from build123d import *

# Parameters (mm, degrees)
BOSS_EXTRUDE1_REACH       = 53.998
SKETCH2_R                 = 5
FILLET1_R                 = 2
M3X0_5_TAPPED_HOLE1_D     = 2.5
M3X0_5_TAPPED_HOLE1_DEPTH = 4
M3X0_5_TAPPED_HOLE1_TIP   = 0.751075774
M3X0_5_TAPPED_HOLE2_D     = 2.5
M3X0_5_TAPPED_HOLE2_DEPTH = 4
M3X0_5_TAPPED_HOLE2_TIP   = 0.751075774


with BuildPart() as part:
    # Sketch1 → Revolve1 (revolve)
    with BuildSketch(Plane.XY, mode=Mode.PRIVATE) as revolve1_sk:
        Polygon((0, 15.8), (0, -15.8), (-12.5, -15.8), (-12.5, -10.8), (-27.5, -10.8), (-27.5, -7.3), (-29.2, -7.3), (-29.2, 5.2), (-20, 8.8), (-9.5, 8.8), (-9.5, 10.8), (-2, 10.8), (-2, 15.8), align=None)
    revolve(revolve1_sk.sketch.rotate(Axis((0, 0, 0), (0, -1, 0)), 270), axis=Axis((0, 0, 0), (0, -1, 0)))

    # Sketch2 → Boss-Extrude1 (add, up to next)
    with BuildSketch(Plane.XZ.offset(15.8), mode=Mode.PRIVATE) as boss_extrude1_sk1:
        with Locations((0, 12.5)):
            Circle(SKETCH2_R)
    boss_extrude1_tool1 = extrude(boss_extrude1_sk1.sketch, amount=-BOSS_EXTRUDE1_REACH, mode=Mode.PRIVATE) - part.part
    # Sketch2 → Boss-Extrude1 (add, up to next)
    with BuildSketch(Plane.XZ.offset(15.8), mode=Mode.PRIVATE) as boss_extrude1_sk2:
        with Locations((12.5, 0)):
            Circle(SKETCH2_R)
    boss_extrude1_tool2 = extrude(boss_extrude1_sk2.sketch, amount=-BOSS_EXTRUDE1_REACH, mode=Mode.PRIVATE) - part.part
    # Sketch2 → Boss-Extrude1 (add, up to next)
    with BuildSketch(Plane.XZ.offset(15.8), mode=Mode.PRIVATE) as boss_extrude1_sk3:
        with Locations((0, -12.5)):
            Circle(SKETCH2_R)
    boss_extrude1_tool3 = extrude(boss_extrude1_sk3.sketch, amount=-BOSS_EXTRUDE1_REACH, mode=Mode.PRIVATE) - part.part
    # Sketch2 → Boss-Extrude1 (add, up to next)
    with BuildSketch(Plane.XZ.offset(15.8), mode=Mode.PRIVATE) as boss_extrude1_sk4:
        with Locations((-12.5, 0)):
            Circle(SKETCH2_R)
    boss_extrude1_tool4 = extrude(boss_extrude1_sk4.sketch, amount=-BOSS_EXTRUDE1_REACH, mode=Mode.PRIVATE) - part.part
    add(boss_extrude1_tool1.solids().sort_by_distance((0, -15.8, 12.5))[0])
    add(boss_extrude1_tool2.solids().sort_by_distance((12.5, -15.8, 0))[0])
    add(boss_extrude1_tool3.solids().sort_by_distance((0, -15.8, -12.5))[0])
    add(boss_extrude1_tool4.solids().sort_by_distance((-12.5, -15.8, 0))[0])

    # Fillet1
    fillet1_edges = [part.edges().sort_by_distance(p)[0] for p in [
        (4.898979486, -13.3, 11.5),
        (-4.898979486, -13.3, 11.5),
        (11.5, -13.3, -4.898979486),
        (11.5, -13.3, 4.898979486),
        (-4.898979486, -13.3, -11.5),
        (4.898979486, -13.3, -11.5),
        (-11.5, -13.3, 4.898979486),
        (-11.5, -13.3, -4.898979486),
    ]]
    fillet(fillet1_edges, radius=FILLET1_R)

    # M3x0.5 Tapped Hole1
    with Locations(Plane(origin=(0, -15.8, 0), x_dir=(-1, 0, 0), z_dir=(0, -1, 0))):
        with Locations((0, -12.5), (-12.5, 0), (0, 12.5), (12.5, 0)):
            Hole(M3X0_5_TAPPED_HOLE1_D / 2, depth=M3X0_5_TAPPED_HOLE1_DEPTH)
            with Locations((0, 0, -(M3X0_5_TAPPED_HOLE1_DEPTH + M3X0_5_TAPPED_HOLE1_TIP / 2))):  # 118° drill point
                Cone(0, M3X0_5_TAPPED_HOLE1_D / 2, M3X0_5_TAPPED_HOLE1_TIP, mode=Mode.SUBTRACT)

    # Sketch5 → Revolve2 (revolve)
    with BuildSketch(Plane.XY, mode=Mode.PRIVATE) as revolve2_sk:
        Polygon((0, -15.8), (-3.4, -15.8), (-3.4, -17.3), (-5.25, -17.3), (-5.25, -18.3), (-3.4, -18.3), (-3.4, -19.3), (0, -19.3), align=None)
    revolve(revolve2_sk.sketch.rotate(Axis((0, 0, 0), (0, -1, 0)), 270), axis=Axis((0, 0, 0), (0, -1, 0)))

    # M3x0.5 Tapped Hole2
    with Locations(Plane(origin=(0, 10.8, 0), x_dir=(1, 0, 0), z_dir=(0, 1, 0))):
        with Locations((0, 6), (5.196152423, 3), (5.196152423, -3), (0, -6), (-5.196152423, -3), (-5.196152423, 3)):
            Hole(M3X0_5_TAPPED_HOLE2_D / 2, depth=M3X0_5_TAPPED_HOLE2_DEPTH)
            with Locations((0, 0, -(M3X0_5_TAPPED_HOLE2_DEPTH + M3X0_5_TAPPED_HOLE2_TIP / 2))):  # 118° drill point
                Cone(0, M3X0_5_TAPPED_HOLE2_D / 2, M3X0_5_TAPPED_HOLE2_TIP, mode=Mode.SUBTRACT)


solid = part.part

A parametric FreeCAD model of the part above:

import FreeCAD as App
import Part
import Sketcher
from FreeCAD import Vector


def edges_at(feature, points):
    """Names of the edges that pass closest to the given points."""
    edges = feature.Shape.Edges
    near = lambda p: min(range(len(edges)), key=lambda i: edges[i].distToShape(Part.Vertex(*p))[0])
    return sorted({f"Edge{near(p) + 1}" for p in points})


def add_polygon(sketch, points):
    """Adds a closed chain of lines whose ends are joined by coincident constraints."""
    first, n = sketch.GeometryCount, len(points)
    for a, b in zip(points, points[1:] + points[:1]):
        sketch.addGeometry(Part.LineSegment(App.Vector(*a, 0), App.Vector(*b, 0)), False)
    for i in range(n):
        sketch.addConstraint(Sketcher.Constraint("Coincident", first + i, 2, first + (i + 1) % n, 1))

doc = App.newDocument("Part")
body = doc.addObject("PartDesign::Body", "Body")

# Sketch on XY plane
sketch1 = body.newObject("Sketcher::SketchObject", "Sketch")
sketch1.AttachmentSupport = (doc.getObject("XY_Plane"), [""])
sketch1.MapMode = "FlatFace"
add_polygon(sketch1, [(0, -15.8), (0, 15.8), (-2, 15.8), (-2, 10.8), (-9.5, 10.8), (-9.5, 8.8), (-20, 8.8), (-29.2, 5.2), (-29.2, -7.3), (-27.5, -7.3), (-27.5, -10.8), (-12.5, -10.8), (-12.5, -15.8)])  # lines 0-12
sketch1.addConstraint(Sketcher.Constraint("Vertical", 0))
sketch1.addConstraint(Sketcher.Constraint("Horizontal", 1))
sketch1.addConstraint(Sketcher.Constraint("Vertical", 2))
sketch1.addConstraint(Sketcher.Constraint("Horizontal", 3))
sketch1.addConstraint(Sketcher.Constraint("Vertical", 4))
sketch1.addConstraint(Sketcher.Constraint("Horizontal", 5))
sketch1.addConstraint(Sketcher.Constraint("Vertical", 7))
sketch1.addConstraint(Sketcher.Constraint("Horizontal", 8))
sketch1.addConstraint(Sketcher.Constraint("Vertical", 9))
sketch1.addConstraint(Sketcher.Constraint("Horizontal", 10))
sketch1.addConstraint(Sketcher.Constraint("Vertical", 11))
sketch1.addConstraint(Sketcher.Constraint("Horizontal", 12))
sketch1.addConstraint(Sketcher.Constraint("Symmetric", 0, 2, 12, 2, -1, 1))
sketch1.addConstraint(Sketcher.Constraint("Equal", 1, 4))
sketch1.addConstraint(Sketcher.Constraint("Equal", 12, 7))
sketch1.addConstraint(Sketcher.Constraint("Equal", 2, 11))
sketch1.addConstraint(Sketcher.Constraint("DistanceX", 1, 2, 1, 1, 2.0))
sketch1.addConstraint(Sketcher.Constraint("DistanceX", 10, 1, 10, 2, 15.0))
sketch1.addConstraint(Sketcher.Constraint("DistanceY", 2, 2, 2, 1, 5.0))
sketch1.addConstraint(Sketcher.Constraint("DistanceX", 3, 2, 3, 1, 7.5))
sketch1.addConstraint(Sketcher.Constraint("DistanceX", 5, 2, 5, 1, 10.5))
sketch1.addConstraint(Sketcher.Constraint("DistanceX", 8, 1, 8, 2, 1.7))
sketch1.addConstraint(Sketcher.Constraint("DistanceX", 12, 1, 12, 2, 12.5))
sketch1.addConstraint(Sketcher.Constraint("DistanceY", 0, 1, 0, 2, 31.6))
sketch1.addConstraint(Sketcher.Constraint("DistanceY", 9, 2, 9, 1, 3.5))
revolution = body.newObject("PartDesign::Revolution", "Revolution")
revolution.Profile = sketch1
revolution.ReferenceAxis = (sketch1, ["V_Axis"])
revolution.Angle = 360

# Sketch on XZ plane
sketch2 = body.newObject("Sketcher::SketchObject", "Sketch001")
sketch2.AttachmentSupport = (doc.getObject("XZ_Plane"), [""])
sketch2.MapMode = "FlatFace"
sketch2.AttachmentOffset = App.Placement(Vector(0, 0, 15.8), App.Rotation())
sketch2.addGeometry(Part.Circle(Vector(0, 12.5, 0), Vector(0, 0, 1), 5), False)
sketch2.addConstraint(Sketcher.Constraint("PointOnObject", 0, 3, -2))
sketch2.addConstraint(Sketcher.Constraint("Diameter", 0, 10.0))
sketch2.addConstraint(Sketcher.Constraint("DistanceY", -1, 1, 0, 3, 12.5))
pad1 = body.newObject("PartDesign::Pad", "Pad")
pad1.Profile = sketch2
pad1.Type = "UpToFirst"
pad1.Reversed = True

# Sketch on XZ plane
sketch3 = body.newObject("Sketcher::SketchObject", "Sketch002")
sketch3.AttachmentSupport = (doc.getObject("XZ_Plane"), [""])
sketch3.MapMode = "FlatFace"
sketch3.AttachmentOffset = App.Placement(Vector(0, 0, 15.8), App.Rotation())
sketch3.addGeometry(Part.Circle(Vector(12.5, 0, 0), Vector(0, 0, 1), 5), False)
sketch3.addConstraint(Sketcher.Constraint("PointOnObject", 0, 3, -1))
sketch3.addConstraint(Sketcher.Constraint("Diameter", 0, 10.0))
sketch3.addConstraint(Sketcher.Constraint("DistanceX", -1, 1, 0, 3, 12.5))
pad2 = body.newObject("PartDesign::Pad", "Pad001")
pad2.Profile = sketch3
pad2.Type = "UpToFirst"
pad2.Reversed = True

# Sketch on XZ plane
sketch4 = body.newObject("Sketcher::SketchObject", "Sketch003")
sketch4.AttachmentSupport = (doc.getObject("XZ_Plane"), [""])
sketch4.MapMode = "FlatFace"
sketch4.AttachmentOffset = App.Placement(Vector(0, 0, 15.8), App.Rotation())
sketch4.addGeometry(Part.Circle(Vector(0, -12.5, 0), Vector(0, 0, 1), 5), False)
sketch4.addConstraint(Sketcher.Constraint("PointOnObject", 0, 3, -2))
sketch4.addConstraint(Sketcher.Constraint("Diameter", 0, 10.0))
sketch4.addConstraint(Sketcher.Constraint("DistanceY", 0, 3, -1, 1, 12.5))
pad3 = body.newObject("PartDesign::Pad", "Pad002")
pad3.Profile = sketch4
pad3.Type = "UpToFirst"
pad3.Reversed = True

# Sketch on XZ plane
sketch5 = body.newObject("Sketcher::SketchObject", "Sketch004")
sketch5.AttachmentSupport = (doc.getObject("XZ_Plane"), [""])
sketch5.MapMode = "FlatFace"
sketch5.AttachmentOffset = App.Placement(Vector(0, 0, 15.8), App.Rotation())
sketch5.addGeometry(Part.Circle(Vector(-12.5, 0, 0), Vector(0, 0, 1), 5), False)
sketch5.addConstraint(Sketcher.Constraint("PointOnObject", 0, 3, -1))
sketch5.addConstraint(Sketcher.Constraint("Diameter", 0, 10.0))
sketch5.addConstraint(Sketcher.Constraint("DistanceX", 0, 3, -1, 1, 12.5))
pad4 = body.newObject("PartDesign::Pad", "Pad003")
pad4.Profile = sketch5
pad4.Type = "UpToFirst"
pad4.Reversed = True
doc.recompute()

fillet = body.newObject("PartDesign::Fillet", "Fillet")
fillet.Base = (pad4, edges_at(pad4, [
    (4.899, -13.3, 11.5),
    (-4.899, -13.3, 11.5),
    (11.5, -13.3, -4.899),
    (11.5, -13.3, 4.899),
    (-4.899, -13.3, -11.5),
    (4.899, -13.3, -11.5),
    (-11.5, -13.3, 4.899),
    (-11.5, -13.3, -4.899),
]))
fillet.Radius = 2

# Sketch on XZ plane
sketch6 = body.newObject("Sketcher::SketchObject", "Sketch005")
sketch6.AttachmentSupport = (doc.getObject("XZ_Plane"), [""])
sketch6.MapMode = "FlatFace"
sketch6.AttachmentOffset = App.Placement(Vector(0, 0, 15.8), App.Rotation())
sketch6.addGeometry(Part.Circle(Vector(0, 12.5, 0), Vector(0, 0, 1), 1.25), False)
sketch6.addGeometry(Part.Circle(Vector(12.5, 0, 0), Vector(0, 0, 1), 1.25), False)
sketch6.addGeometry(Part.Circle(Vector(0, -12.5, 0), Vector(0, 0, 1), 1.25), False)
sketch6.addGeometry(Part.Circle(Vector(-12.5, 0, 0), Vector(0, 0, 1), 1.25), False)
sketch6.addConstraint(Sketcher.Constraint("Equal", 0, 1))
sketch6.addConstraint(Sketcher.Constraint("Equal", 1, 2))
sketch6.addConstraint(Sketcher.Constraint("Equal", 2, 3))
sketch6.addConstraint(Sketcher.Constraint("Symmetric", 0, 3, 2, 3, -1, 1))
sketch6.addConstraint(Sketcher.Constraint("Symmetric", 1, 3, 3, 3, -1, 1))
sketch6.addConstraint(Sketcher.Constraint("PointOnObject", 0, 3, -2))
sketch6.addConstraint(Sketcher.Constraint("PointOnObject", 1, 3, -1))
sketch6.addConstraint(Sketcher.Constraint("Diameter", 0, 2.5))
sketch6.addConstraint(Sketcher.Constraint("DistanceY", 2, 3, 0, 3, 25.0))
sketch6.addConstraint(Sketcher.Constraint("DistanceX", 3, 3, 1, 3, 25.0))
doc.recompute()
hole = body.newObject("PartDesign::Hole", "Hole")
hole.Profile = sketch6
hole.ThreadType = "None"
hole.Diameter = 2.5
hole.DepthType = "Dimension"
hole.Depth = 4
hole.DrillPoint = "Angled"
hole.DrillPointAngle = 118

# Sketch on XY plane
sketch7 = body.newObject("Sketcher::SketchObject", "Sketch006")
sketch7.AttachmentSupport = (doc.getObject("XY_Plane"), [""])
sketch7.MapMode = "FlatFace"
add_polygon(sketch7, [(0, -15.8), (-3.4, -15.8), (-3.4, -17.3), (-5.25, -17.3), (-5.25, -18.3), (-3.4, -18.3), (-3.4, -19.3), (0, -19.3)])  # lines 0-7
sketch7.addConstraint(Sketcher.Constraint("Horizontal", 0))
sketch7.addConstraint(Sketcher.Constraint("Vertical", 1))
sketch7.addConstraint(Sketcher.Constraint("Horizontal", 2))
sketch7.addConstraint(Sketcher.Constraint("Vertical", 3))
sketch7.addConstraint(Sketcher.Constraint("Horizontal", 4))
sketch7.addConstraint(Sketcher.Constraint("Vertical", 5))
sketch7.addConstraint(Sketcher.Constraint("Horizontal", 6))
sketch7.addConstraint(Sketcher.Constraint("Vertical", 7))
sketch7.addConstraint(Sketcher.Constraint("PointOnObject", 6, 2, -2))
sketch7.addConstraint(Sketcher.Constraint("Vertical", 1, 2, 4, 2))
sketch7.addConstraint(Sketcher.Constraint("Equal", 3, 5))
sketch7.addConstraint(Sketcher.Constraint("DistanceY", 3, 2, 3, 1, 1.0))
sketch7.addConstraint(Sketcher.Constraint("DistanceX", 0, 2, 0, 1, 3.4))
sketch7.addConstraint(Sketcher.Constraint("DistanceY", 1, 2, 1, 1, 1.5))
sketch7.addConstraint(Sketcher.Constraint("DistanceX", 2, 2, 2, 1, 1.85))
sketch7.addConstraint(Sketcher.Constraint("DistanceY", 0, 2, -1, 1, 15.8))
revolution2 = body.newObject("PartDesign::Revolution", "Revolution001")
revolution2.Profile = sketch7
revolution2.ReferenceAxis = (sketch7, ["V_Axis"])
revolution2.Angle = 360

# Sketch on XZ plane
sketch8 = body.newObject("Sketcher::SketchObject", "Sketch007")
sketch8.AttachmentSupport = (doc.getObject("XZ_Plane"), [""])
sketch8.MapMode = "FlatFace"
sketch8.AttachmentOffset = App.Placement(Vector(0, 0, -10.8), App.Rotation())
sketch8.addGeometry(Part.Circle(Vector(0, -6, 0), Vector(0, 0, 1), 1.25), False)
sketch8.addGeometry(Part.Circle(Vector(5.196152, -3, 0), Vector(0, 0, 1), 1.25), False)
sketch8.addGeometry(Part.Circle(Vector(5.196152, 3, 0), Vector(0, 0, 1), 1.25), False)
sketch8.addGeometry(Part.Circle(Vector(0, 6, 0), Vector(0, 0, 1), 1.25), False)
sketch8.addGeometry(Part.Circle(Vector(-5.196152, 3, 0), Vector(0, 0, 1), 1.25), False)
sketch8.addGeometry(Part.Circle(Vector(-5.196152, -3, 0), Vector(0, 0, 1), 1.25), False)
sketch8.addConstraint(Sketcher.Constraint("Equal", 0, 1))
sketch8.addConstraint(Sketcher.Constraint("Equal", 1, 2))
sketch8.addConstraint(Sketcher.Constraint("Equal", 2, 3))
sketch8.addConstraint(Sketcher.Constraint("Equal", 3, 4))
sketch8.addConstraint(Sketcher.Constraint("Equal", 4, 5))
sketch8.addConstraint(Sketcher.Constraint("Symmetric", 0, 3, 3, 3, -1, 1))
sketch8.addConstraint(Sketcher.Constraint("Symmetric", 1, 3, 4, 3, -1, 1))
sketch8.addConstraint(Sketcher.Constraint("Symmetric", 2, 3, 5, 3, -1, 1))
sketch8.addConstraint(Sketcher.Constraint("Symmetric", 2, 3, 4, 3, -2))
sketch8.addConstraint(Sketcher.Constraint("PointOnObject", 0, 3, -2))
sketch8.addConstraint(Sketcher.Constraint("Diameter", 0, 2.5))
sketch8.addConstraint(Sketcher.Constraint("DistanceY", 0, 3, -1, 1, 6.0))
sketch8.addConstraint(Sketcher.Constraint("DistanceY", 1, 3, -1, 1, 3.0))
sketch8.addConstraint(Sketcher.Constraint("DistanceX", -1, 1, 1, 3, 5.196152))
doc.recompute()
hole2 = body.newObject("PartDesign::Hole", "Hole001")
hole2.Profile = sketch8
hole2.ThreadType = "None"
hole2.Diameter = 2.5
hole2.DepthType = "Dimension"
hole2.Depth = 4
hole2.DrillPoint = "Angled"
hole2.DrillPointAngle = 118
hole2.Reversed = True

doc.recompute()
